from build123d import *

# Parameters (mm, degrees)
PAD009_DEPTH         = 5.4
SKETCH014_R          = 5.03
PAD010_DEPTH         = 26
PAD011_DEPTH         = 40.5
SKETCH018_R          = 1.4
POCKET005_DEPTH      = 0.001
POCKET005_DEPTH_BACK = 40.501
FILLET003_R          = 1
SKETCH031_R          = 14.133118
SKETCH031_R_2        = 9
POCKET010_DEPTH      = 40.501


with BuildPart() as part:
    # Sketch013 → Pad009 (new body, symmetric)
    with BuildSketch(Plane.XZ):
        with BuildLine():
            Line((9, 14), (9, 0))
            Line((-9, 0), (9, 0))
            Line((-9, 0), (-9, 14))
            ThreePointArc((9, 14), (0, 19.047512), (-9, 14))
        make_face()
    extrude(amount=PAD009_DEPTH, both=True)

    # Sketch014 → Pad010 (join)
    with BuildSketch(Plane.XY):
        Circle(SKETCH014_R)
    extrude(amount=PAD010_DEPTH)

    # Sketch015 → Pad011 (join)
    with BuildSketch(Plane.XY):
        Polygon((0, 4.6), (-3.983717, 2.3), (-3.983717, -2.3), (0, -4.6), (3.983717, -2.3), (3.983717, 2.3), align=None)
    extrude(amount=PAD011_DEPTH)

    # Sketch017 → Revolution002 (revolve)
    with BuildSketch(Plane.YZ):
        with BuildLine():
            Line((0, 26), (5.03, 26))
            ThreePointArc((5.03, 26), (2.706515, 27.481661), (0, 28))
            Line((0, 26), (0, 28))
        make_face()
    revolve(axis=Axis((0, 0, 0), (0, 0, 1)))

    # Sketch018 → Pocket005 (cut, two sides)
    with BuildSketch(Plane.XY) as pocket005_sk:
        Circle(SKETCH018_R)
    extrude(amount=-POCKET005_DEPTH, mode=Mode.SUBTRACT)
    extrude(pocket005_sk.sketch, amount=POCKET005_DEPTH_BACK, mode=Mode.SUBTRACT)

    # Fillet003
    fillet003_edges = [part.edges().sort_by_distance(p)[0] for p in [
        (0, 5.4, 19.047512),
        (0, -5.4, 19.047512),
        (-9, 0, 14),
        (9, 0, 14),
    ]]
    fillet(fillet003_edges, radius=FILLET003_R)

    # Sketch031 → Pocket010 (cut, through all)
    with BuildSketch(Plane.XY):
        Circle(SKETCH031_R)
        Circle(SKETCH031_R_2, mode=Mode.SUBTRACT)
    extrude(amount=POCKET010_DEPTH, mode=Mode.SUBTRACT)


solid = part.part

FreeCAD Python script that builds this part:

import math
import FreeCAD as App
import Part
import Sketcher
Q = App.Units.Quantity


def edges_at(feature, points):
    """Names of the edges that pass closest to the given points."""
    edges = feature.Shape.Edges
    near = lambda p: min(range(len(edges)), key=lambda i: edges[i].distToShape(Part.Vertex(*p))[0])
    return sorted({f"Edge{near(p) + 1}" for p in points})

doc = App.newDocument("Part")
body = doc.addObject("PartDesign::Body", "Body")

# Sketch on XZ plane
sketch1 = body.newObject("Sketcher::SketchObject", "Sketch")
sketch1.AttachmentSupport = (doc.getObject("XZ_Plane"), [""])
sketch1.MapMode = "FlatFace"
sketch1.addGeometry([
    Part.LineSegment(App.Vector(9, 0, 0), App.Vector(9, 14, 0)),
    Part.ArcOfCircle(Part.Circle(App.Vector(0, 9, 0), App.Vector(0, 0, 1), 11), math.radians(31), math.radians(149)),
    Part.LineSegment(App.Vector(-9, 14, 0), App.Vector(-9, 0, 0)),
    Part.LineSegment(App.Vector(-9, 0, 0), App.Vector(9, 0, 0)),
], False)
sketch1.addConstraint([
    Sketcher.Constraint("Coincident", 0, 2, 1, 1),
    Sketcher.Constraint("Coincident", 1, 2, 2, 1),
    Sketcher.Constraint("Coincident", 2, 2, 3, 1),
    Sketcher.Constraint("Coincident", 3, 2, 0, 1),
    Sketcher.Constraint("Vertical", 0),
    Sketcher.Constraint("Vertical", 2),
    Sketcher.Constraint("Horizontal", 3),
    Sketcher.Constraint("Symmetric", 2, 2, 3, 2, -1, 1),
    Sketcher.Constraint("PointOnObject", 1, 3, -2),
    Sketcher.Constraint("DistanceX", 3, 1, 3, 2, Q("18 mm")),
    Sketcher.Constraint("DistanceY", 0, 1, 0, 2, Q("14 mm")),
    Sketcher.Constraint("DistanceY", -1, 1, 1, 3, Q("8.500001 mm")),
])
pad1 = body.newObject("PartDesign::Pad", "Pad")
pad1.Profile = sketch1
pad1.Length = 10.8
pad1.Midplane = True

# Sketch on XY plane
sketch2 = body.newObject("Sketcher::SketchObject", "Sketch001")
sketch2.AttachmentSupport = (doc.getObject("XY_Plane"), [""])
sketch2.MapMode = "FlatFace"
sketch2.addGeometry(Part.Circle(App.Vector(0, 0, 0), App.Vector(0, 0, 1), 5), False)
sketch2.addConstraint([
    Sketcher.Constraint("Coincident", 0, 3, -1, 1),
    Sketcher.Constraint("Diameter", 0, Q("10.06 mm")),
])
pad2 = body.newObject("PartDesign::Pad", "Pad001")
pad2.Profile = sketch2
pad2.Length = 26

# Sketch on XY plane
sketch3 = body.newObject("Sketcher::SketchObject", "Sketch002")
sketch3.AttachmentSupport = (doc.getObject("XY_Plane"), [""])
sketch3.MapMode = "FlatFace"
sketch3.addGeometry([
    Part.LineSegment(App.Vector(0, 4.6, 0), App.Vector(-4, 2.3, 0)),  # 0
    Part.LineSegment(App.Vector(-4, 2.3, 0), App.Vector(-4, -2.3, 0)),  # 1
    Part.LineSegment(App.Vector(-4, -2.3, 0), App.Vector(0, -4.6, 0)),  # 2
    Part.LineSegment(App.Vector(0, -4.6, 0), App.Vector(4, -2.3, 0)),  # 3
    Part.LineSegment(App.Vector(4, -2.3, 0), App.Vector(4, 2.3, 0)),  # 4
    Part.LineSegment(App.Vector(4, 2.3, 0), App.Vector(0, 4.6, 0)),  # 5
], False)
sketch3.addConstraint([
    Sketcher.Constraint("Coincident", 0, 2, 1, 1),
    Sketcher.Constraint("Coincident", 1, 2, 2, 1),
    Sketcher.Constraint("Coincident", 2, 2, 3, 1),
    Sketcher.Constraint("Coincident", 3, 2, 4, 1),
    Sketcher.Constraint("Coincident", 4, 2, 5, 1),
    Sketcher.Constraint("Coincident", 5, 2, 0, 1),
    Sketcher.Constraint("Vertical", 1),
    Sketcher.Constraint("Vertical", 4),
    Sketcher.Constraint("Symmetric", 0, 2, 3, 2, -1, 1),
    Sketcher.Constraint("Symmetric", 2, 2, 5, 2, -1, 1),
    Sketcher.Constraint("PointOnObject", 2, 2, -2),
    Sketcher.Constraint("Parallel", 2, 5),
    Sketcher.Constraint("Horizontal", 1, 2, 3, 2),
    Sketcher.Constraint("Angle", 0, Q("-150.000001 deg")),
    Sketcher.Constraint("DistanceY", 1, 2, 1, 1, Q("4.6 mm")),
    Sketcher.Constraint("Distance", 0, Q("4.6 mm")),
])
pad3 = body.newObject("PartDesign::Pad", "Pad002")
pad3.Profile = sketch3
pad3.Length = 40.5

# Sketch on YZ plane
sketch4 = body.newObject("Sketcher::SketchObject", "Sketch003")
sketch4.AttachmentSupport = (doc.getObject("YZ_Plane"), [""])
sketch4.MapMode = "FlatFace"
sketch4.addGeometry([
    Part.LineSegment(App.Vector(0, 26, 0), App.Vector(5, 26, 0)),
    Part.ArcOfCircle(Part.Circle(App.Vector(0, 20.7, 0), App.Vector(0, 0, 1), 7.3), math.radians(47), math.radians(90)),
    Part.LineSegment(App.Vector(0, 28, 0), App.Vector(0, 26, 0)),
], False)
sketch4.addConstraint([
    Sketcher.Constraint("Coincident", 0, 2, 1, 1),
    Sketcher.Constraint("Coincident", 1, 2, 2, 1),
    Sketcher.Constraint("Coincident", 2, 2, 0, 1),
    Sketcher.Constraint("Horizontal", 0),
    Sketcher.Constraint("Vertical", 2),
    Sketcher.Constraint("PointOnObject", 1, 3, -2),
    Sketcher.Constraint("PointOnObject", 1, 2, -2),
    Sketcher.Constraint("DistanceY", 2, 2, 2, 1, Q("2 mm")),
    Sketcher.Constraint("DistanceY", -1, 1, 0, 2, Q("26 mm")),
    Sketcher.Constraint("DistanceX", 0, 1, 0, 2, Q("5.03 mm")),
])
revolution = body.newObject("PartDesign::Revolution", "Revolution")
revolution.Profile = sketch4
revolution.ReferenceAxis = (sketch4, ["V_Axis"])
revolution.Angle = 360

# Sketch on XY plane
sketch5 = body.newObject("Sketcher::SketchObject", "Sketch004")
sketch5.AttachmentSupport = (doc.getObject("XY_Plane"), [""])
sketch5.MapMode = "FlatFace"
sketch5.addGeometry(Part.Circle(App.Vector(0, 0, 0), App.Vector(0, 0, 1), 1.4), False)
sketch5.addConstraint([
    Sketcher.Constraint("Coincident", 0, 3, -1, 1),
    Sketcher.Constraint("Diameter", 0, Q("2.8 mm")),
])
pocket1 = body.newObject("PartDesign::Pocket", "Pocket")
pocket1.Profile = sketch5
pocket1.Type = "ThroughAll"
pocket1.Midplane = True
doc.recompute()

fillet = body.newObject("PartDesign::Fillet", "Fillet")
fillet.Base = (pocket1, edges_at(pocket1, [
    (0, 5.4, 19.048),
    (0, -5.4, 19.048),
    (-9, 0, 14),
    (9, 0, 14),
]))
fillet.Radius = 1

# Sketch on XY plane
sketch6 = body.newObject("Sketcher::SketchObject", "Sketch005")
sketch6.AttachmentSupport = (doc.getObject("XY_Plane"), [""])
sketch6.MapMode = "FlatFace"
sketch6.addGeometry([
    Part.Circle(App.Vector(0, 0, 0), App.Vector(0, 0, 1), 14),
    Part.Circle(App.Vector(0, 0, 0), App.Vector(0, 0, 1), 9),
], False)
sketch6.addConstraint([
    Sketcher.Constraint("Coincident", 0, 3, -1, 1),
    Sketcher.Constraint("Coincident", 1, 3, -1, 1),
    Sketcher.Constraint("Diameter", 1, Q("18 mm")),
    Sketcher.Constraint("Diameter", 0, Q("28.266236 mm")),
])
pocket2 = body.newObject("PartDesign::Pocket", "Pocket001")
pocket2.Profile = sketch6
pocket2.Type = "ThroughAll"
pocket2.Reversed = True

doc.recompute()
